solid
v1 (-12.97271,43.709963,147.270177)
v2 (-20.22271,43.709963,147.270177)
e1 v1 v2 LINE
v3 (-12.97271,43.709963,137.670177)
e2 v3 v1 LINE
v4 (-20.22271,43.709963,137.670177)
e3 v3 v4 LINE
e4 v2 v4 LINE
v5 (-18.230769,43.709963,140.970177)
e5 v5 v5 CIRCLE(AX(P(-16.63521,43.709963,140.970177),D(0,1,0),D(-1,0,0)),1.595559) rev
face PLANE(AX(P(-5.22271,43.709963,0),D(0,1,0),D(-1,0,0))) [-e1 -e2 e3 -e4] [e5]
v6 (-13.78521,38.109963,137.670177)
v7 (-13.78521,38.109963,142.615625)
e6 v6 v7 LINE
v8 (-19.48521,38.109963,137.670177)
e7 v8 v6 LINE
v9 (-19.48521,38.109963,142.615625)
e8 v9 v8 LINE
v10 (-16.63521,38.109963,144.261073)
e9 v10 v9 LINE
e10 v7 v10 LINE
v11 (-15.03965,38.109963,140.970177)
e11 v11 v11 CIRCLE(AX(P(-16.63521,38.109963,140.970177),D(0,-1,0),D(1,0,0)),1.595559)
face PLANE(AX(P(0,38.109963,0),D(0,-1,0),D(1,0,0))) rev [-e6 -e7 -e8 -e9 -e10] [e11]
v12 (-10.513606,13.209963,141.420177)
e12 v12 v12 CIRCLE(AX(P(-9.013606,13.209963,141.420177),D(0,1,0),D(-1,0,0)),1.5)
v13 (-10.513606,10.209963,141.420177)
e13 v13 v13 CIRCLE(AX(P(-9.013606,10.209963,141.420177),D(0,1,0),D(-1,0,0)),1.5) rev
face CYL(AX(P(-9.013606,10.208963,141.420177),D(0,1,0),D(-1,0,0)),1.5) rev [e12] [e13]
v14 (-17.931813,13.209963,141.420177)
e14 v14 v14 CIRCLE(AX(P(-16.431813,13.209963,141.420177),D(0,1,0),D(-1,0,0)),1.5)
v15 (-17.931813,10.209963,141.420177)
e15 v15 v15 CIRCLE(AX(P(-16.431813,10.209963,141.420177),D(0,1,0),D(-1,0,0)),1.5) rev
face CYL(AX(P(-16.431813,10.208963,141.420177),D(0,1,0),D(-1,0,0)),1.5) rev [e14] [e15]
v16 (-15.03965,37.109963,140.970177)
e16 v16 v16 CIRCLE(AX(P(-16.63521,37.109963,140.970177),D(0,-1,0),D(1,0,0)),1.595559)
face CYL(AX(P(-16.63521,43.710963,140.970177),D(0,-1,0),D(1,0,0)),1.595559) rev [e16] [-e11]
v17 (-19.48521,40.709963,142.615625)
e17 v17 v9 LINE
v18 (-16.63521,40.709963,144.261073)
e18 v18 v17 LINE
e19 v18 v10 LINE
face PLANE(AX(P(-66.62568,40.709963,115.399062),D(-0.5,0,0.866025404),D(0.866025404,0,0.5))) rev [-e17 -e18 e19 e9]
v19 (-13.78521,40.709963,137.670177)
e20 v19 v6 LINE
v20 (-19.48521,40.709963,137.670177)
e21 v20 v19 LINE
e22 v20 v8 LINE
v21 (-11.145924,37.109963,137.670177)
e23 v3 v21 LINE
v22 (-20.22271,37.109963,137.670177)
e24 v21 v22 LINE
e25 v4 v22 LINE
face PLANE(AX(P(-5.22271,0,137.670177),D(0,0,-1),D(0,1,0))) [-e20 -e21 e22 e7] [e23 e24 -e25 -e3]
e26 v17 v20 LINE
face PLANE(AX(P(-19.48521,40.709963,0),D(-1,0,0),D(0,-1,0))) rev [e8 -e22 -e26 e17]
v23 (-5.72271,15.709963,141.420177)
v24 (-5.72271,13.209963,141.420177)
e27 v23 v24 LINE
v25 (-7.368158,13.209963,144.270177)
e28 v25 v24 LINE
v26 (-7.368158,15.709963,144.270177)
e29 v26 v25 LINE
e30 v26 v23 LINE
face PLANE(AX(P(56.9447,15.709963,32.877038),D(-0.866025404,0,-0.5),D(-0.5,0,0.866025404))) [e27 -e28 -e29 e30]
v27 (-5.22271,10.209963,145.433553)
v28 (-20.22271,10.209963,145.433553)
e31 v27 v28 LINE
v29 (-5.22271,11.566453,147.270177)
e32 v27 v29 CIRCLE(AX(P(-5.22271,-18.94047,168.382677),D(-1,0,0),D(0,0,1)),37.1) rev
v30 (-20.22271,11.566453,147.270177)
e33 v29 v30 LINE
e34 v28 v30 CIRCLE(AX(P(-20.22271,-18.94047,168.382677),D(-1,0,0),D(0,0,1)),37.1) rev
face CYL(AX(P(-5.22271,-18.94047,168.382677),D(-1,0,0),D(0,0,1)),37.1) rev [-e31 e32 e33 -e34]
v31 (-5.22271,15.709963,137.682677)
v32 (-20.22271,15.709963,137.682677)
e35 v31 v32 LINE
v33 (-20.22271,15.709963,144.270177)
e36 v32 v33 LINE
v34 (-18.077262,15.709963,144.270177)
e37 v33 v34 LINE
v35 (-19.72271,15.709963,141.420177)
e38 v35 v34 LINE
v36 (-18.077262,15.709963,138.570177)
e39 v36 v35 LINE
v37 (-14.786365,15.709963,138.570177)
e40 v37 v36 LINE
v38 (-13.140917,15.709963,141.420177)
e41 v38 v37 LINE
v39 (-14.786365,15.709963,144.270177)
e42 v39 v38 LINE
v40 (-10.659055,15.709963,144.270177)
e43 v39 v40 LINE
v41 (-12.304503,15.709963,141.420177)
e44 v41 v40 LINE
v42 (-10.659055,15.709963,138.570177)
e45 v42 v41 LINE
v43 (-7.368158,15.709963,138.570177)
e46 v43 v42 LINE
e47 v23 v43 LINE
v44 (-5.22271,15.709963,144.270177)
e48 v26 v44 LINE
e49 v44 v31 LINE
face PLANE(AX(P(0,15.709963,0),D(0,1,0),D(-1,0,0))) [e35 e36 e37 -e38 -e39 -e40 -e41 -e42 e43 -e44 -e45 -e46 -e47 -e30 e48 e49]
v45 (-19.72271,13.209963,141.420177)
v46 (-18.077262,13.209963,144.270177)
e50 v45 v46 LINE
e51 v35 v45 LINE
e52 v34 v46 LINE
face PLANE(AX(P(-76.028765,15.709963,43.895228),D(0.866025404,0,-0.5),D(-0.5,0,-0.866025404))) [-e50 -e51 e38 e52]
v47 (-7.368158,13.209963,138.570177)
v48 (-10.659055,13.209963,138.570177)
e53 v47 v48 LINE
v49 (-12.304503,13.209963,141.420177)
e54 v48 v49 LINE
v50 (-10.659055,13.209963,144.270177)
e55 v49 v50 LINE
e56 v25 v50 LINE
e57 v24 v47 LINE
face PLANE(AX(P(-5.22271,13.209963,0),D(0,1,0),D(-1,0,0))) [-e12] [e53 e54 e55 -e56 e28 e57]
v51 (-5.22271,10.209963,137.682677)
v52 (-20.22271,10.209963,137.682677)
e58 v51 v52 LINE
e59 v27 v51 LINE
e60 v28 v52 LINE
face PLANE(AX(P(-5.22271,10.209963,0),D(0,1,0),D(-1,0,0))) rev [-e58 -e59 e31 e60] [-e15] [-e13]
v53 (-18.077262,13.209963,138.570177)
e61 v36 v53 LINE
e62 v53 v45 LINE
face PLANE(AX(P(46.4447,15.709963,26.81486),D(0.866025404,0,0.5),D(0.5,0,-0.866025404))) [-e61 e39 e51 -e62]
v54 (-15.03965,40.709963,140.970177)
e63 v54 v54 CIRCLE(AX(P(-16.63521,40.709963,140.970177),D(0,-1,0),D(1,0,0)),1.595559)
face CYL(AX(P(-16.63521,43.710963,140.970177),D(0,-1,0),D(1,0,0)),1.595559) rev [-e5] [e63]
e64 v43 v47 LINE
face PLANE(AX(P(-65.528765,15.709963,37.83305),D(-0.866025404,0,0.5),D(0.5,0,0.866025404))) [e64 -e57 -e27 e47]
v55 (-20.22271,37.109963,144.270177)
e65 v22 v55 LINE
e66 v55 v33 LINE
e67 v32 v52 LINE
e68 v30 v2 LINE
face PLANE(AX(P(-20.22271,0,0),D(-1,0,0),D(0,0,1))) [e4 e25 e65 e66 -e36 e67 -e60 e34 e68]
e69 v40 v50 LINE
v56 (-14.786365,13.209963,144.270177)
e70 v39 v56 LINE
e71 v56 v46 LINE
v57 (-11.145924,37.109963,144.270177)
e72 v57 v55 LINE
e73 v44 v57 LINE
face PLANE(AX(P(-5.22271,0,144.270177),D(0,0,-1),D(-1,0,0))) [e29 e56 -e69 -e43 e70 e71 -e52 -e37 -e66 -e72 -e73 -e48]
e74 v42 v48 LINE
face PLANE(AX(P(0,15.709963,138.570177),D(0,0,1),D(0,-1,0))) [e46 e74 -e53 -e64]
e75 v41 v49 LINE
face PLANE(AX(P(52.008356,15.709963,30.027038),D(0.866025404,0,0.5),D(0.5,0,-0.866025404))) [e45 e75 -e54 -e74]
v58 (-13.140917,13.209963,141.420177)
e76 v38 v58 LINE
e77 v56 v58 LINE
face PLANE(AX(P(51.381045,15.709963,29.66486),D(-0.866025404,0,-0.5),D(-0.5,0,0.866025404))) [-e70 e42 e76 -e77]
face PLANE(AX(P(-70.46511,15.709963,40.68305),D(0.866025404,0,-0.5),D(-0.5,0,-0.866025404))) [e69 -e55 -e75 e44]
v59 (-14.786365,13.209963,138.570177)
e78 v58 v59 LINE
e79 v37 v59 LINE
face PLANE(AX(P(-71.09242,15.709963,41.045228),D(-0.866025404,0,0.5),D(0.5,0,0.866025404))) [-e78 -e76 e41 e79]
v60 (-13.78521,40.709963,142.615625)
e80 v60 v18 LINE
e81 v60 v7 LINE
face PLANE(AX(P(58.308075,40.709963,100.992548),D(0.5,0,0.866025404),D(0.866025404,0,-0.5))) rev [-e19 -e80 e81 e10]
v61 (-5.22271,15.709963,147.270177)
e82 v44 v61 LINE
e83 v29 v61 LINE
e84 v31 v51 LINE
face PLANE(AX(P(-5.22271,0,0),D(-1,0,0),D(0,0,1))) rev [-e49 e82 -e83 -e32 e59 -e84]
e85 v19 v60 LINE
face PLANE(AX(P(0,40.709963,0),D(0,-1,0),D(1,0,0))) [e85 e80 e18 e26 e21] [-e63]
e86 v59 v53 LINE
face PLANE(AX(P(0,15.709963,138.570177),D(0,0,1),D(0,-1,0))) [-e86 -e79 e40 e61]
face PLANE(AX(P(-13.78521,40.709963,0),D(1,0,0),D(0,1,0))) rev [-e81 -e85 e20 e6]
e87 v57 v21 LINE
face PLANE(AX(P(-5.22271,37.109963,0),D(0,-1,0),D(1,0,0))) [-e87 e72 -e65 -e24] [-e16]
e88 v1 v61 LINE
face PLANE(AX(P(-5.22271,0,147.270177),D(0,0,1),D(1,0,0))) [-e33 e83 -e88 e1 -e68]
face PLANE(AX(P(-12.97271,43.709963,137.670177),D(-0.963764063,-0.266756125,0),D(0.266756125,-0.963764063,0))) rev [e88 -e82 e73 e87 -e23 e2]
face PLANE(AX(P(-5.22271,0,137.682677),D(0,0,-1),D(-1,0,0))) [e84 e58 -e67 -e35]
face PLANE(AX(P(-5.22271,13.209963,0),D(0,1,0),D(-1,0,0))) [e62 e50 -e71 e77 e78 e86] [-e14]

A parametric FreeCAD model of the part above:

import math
import FreeCAD as App
import Part
import Sketcher
Q = App.Units.Quantity

doc = App.newDocument("Part")
params = doc.addObject("Spreadsheet::Sheet", "Params")
for row, (alias, value) in enumerate([
    ("sketch1_radius", "37.1 mm"),
    ("sketch1_width", "3 mm"),
    ("sketch1_width2", "23.9 mm"),
    ("sketch1_width3", "6.6 mm"),
    ("sketch1_height", "9.6 mm"),
    ("pad1_length", "15 mm"),
    ("sketch3_width", "5.7 mm"),
    ("pocket2_length", "2.6 mm"),
    ("sketch4_diameter", "3 mm"),
    ("sketch5_diameter", "3 mm"),
    ("sketch6_width", "15 mm"),
    ("pad2_length", "2.5 mm"),
    ("sketch7_height", "28 mm"),
    ("sketch7_width", "7.75 mm"),
], start=1):
    params.set(f"A{row}", alias)
    params.set(f"B{row}", "=" + value)
    params.setAlias(f"B{row}", alias)

body = doc.addObject("PartDesign::Body", "Body")

sketch1 = body.newObject("Sketcher::SketchObject", "Sketch")
sketch1.AttachmentSupport = (doc.getObject("YZ_Plane"), [""])
sketch1.MapMode = "FlatFace"
sketch1.AttachmentOffset = App.Placement(App.Vector(0, 0, -20.22271), App.Rotation())
sketch1.addGeometry([
    Part.LineSegment(App.Vector(37.109963, 144.270177, 0), App.Vector(13.209963, 144.270177, 0)),
    Part.LineSegment(App.Vector(13.209963, 144.270177, 0), App.Vector(13.209963, 137.682677, 0)),
    Part.LineSegment(App.Vector(13.209963, 137.682677, 0), App.Vector(10.209963, 137.682677, 0)),
    Part.LineSegment(App.Vector(10.209963, 137.682677, 0), App.Vector(10.209963, 145.433553, 0)),
    Part.ArcOfCircle(Part.Circle(App.Vector(-18.94047, 168.382676, 0), App.Vector(0, 0, 1), 37.1), math.radians(-38.212131), math.radians(-34.685405)),
    Part.LineSegment(App.Vector(11.566453, 147.270177, 0), App.Vector(43.709963, 147.270177, 0)),
    Part.LineSegment(App.Vector(43.709963, 147.270177, 0), App.Vector(43.709963, 137.670177, 0)),
    Part.LineSegment(App.Vector(43.709963, 137.670177, 0), App.Vector(37.109963, 137.670177, 0)),
    Part.LineSegment(App.Vector(37.109963, 137.670177, 0), App.Vector(37.109963, 144.270177, 0)),
], False)
sketch1.addConstraint([
    Sketcher.Constraint("Coincident", 0, 2, 1, 1),
    Sketcher.Constraint("Coincident", 1, 2, 2, 1),
    Sketcher.Constraint("Coincident", 2, 2, 3, 1),
    Sketcher.Constraint("Coincident", 3, 2, 4, 1),
    Sketcher.Constraint("Coincident", 4, 2, 5, 1),
    Sketcher.Constraint("Coincident", 5, 2, 6, 1),
    Sketcher.Constraint("Coincident", 6, 2, 7, 1),
    Sketcher.Constraint("Coincident", 7, 2, 8, 1),
    Sketcher.Constraint("Coincident", 8, 2, 0, 1),
    Sketcher.Constraint("Horizontal", 0),
    Sketcher.Constraint("Vertical", 1),
    Sketcher.Constraint("Horizontal", 2),
    Sketcher.Constraint("Vertical", 3),
    Sketcher.Constraint("Horizontal", 5),
    Sketcher.Constraint("Vertical", 6),
    Sketcher.Constraint("Horizontal", 7),
    Sketcher.Constraint("Vertical", 8),
    Sketcher.Constraint("Equal", 7, 8),
    Sketcher.Constraint("Radius", 4, Q("37.1 mm")),
    Sketcher.Constraint("DistanceX", 2, 2, 2, 1, Q("3 mm")),
    Sketcher.Constraint("DistanceX", 0, 2, 0, 1, Q("23.9 mm")),
    Sketcher.Constraint("DistanceX", 7, 2, 7, 1, Q("6.6 mm")),
    Sketcher.Constraint("DistanceY", 6, 2, 6, 1, Q("9.6 mm")),
    Sketcher.Constraint("DistanceY", 1, 2, 4, 3, Q("30.7 mm")),
    Sketcher.Constraint("DistanceY", 1, 2, 1, 1, Q("6.5875 mm")),
    Sketcher.Constraint("DistanceX", 5, 1, 5, 2, Q("32.14351 mm")),
    Sketcher.Constraint("DistanceX", 4, 3, -1, 1, Q("18.94047 mm")),
    Sketcher.Constraint("DistanceY", -1, 1, 4, 3, Q("168.382676 mm")),
])
sketch1.setExpression("Constraints[18]", "Params.sketch1_radius")
sketch1.setExpression("Constraints[19]", "Params.sketch1_width")
sketch1.setExpression("Constraints[20]", "Params.sketch1_width2")
sketch1.setExpression("Constraints[21]", "Params.sketch1_width3")
sketch1.setExpression("Constraints[22]", "Params.sketch1_height")
pad1 = body.newObject("PartDesign::Pad", "Pad")
pad1.Profile = sketch1
pad1.setExpression("Length", "Params.pad1_length")

sketch2 = body.newObject("Sketcher::SketchObject", "Sketch001")
sketch2.AttachmentSupport = (doc.getObject("XZ_Plane"), [""])
sketch2.MapMode = "FlatFace"
sketch2.AttachmentOffset = App.Placement(App.Vector(0, 0, -37.109963), App.Rotation())
sketch2.addGeometry(Part.Circle(App.Vector(-16.63521, 140.970177, 0), App.Vector(0, 0, 1), 1.595559), False)
sketch2.addConstraint([
    Sketcher.Constraint("Diameter", 0, Q("3.191119 mm")),
    Sketcher.Constraint("DistanceX", 0, 3, -1, 1, Q("16.63521 mm")),
    Sketcher.Constraint("DistanceY", -1, 1, 0, 3, Q("140.970177 mm")),
])
pocket1 = body.newObject("PartDesign::Pocket", "Pocket")
pocket1.Profile = sketch2
pocket1.Type = "UpToFirst"

sketch3 = body.newObject("Sketcher::SketchObject", "Sketch002")
sketch3.AttachmentSupport = (doc.getObject("XZ_Plane"), [""])
sketch3.MapMode = "FlatFace"
sketch3.AttachmentOffset = App.Placement(App.Vector(0, 0, -40.709963), App.Rotation())
sketch3.addGeometry([
    Part.LineSegment(App.Vector(-19.48521, 142.615625, 0), App.Vector(-19.48521, 137.670177, 0)),
    Part.LineSegment(App.Vector(-19.48521, 137.670177, 0), App.Vector(-13.78521, 137.670177, 0)),
    Part.LineSegment(App.Vector(-13.78521, 137.670177, 0), App.Vector(-13.78521, 142.615625, 0)),
    Part.LineSegment(App.Vector(-13.78521, 142.615625, 0), App.Vector(-16.63521, 144.261073, 0)),
    Part.LineSegment(App.Vector(-16.63521, 144.261073, 0), App.Vector(-19.48521, 142.615625, 0)),
], False)
sketch3.addConstraint([
    Sketcher.Constraint("Coincident", 0, 2, 1, 1),
    Sketcher.Constraint("Coincident", 1, 2, 2, 1),
    Sketcher.Constraint("Coincident", 2, 2, 3, 1),
    Sketcher.Constraint("Coincident", 3, 2, 4, 1),
    Sketcher.Constraint("Coincident", 4, 2, 0, 1),
    Sketcher.Constraint("Vertical", 0),
    Sketcher.Constraint("Horizontal", 1),
    Sketcher.Constraint("Vertical", 2),
    Sketcher.Constraint("Horizontal", 2, 2, 4, 2),
    Sketcher.Constraint("Equal", 3, 4),
    Sketcher.Constraint("Angle", 3, Q("150 deg")),
    Sketcher.Constraint("DistanceX", 1, 1, 1, 2, Q("5.7 mm")),
    Sketcher.Constraint("DistanceY", 0, 2, 0, 1, Q("4.945448 mm")),
    Sketcher.Constraint("DistanceX", 0, 2, -1, 1, Q("19.48521 mm")),
    Sketcher.Constraint("DistanceY", -1, 1, 0, 2, Q("137.670177 mm")),
])
sketch3.setExpression("Constraints[11]", "Params.sketch3_width")
pocket2 = body.newObject("PartDesign::Pocket", "Pocket001")
pocket2.Profile = sketch3
pocket2.setExpression("Length", "Params.pocket2_length")
pocket2.Reversed = True

sketch4 = body.newObject("Sketcher::SketchObject", "Sketch003")
sketch4.AttachmentSupport = (doc.getObject("XZ_Plane"), [""])
sketch4.MapMode = "FlatFace"
sketch4.AttachmentOffset = App.Placement(App.Vector(0, 0, -13.209963), App.Rotation())
sketch4.addGeometry(Part.Circle(App.Vector(-16.431813, 141.420177, 0), App.Vector(0, 0, 1), 1.5), False)
sketch4.addConstraint([
    Sketcher.Constraint("Diameter", 0, Q("3 mm")),
    Sketcher.Constraint("DistanceX", 0, 3, -1, 1, Q("16.431813 mm")),
    Sketcher.Constraint("DistanceY", -1, 1, 0, 3, Q("141.420177 mm")),
])
sketch4.setExpression("Constraints[0]", "Params.sketch4_diameter")
pocket3 = body.newObject("PartDesign::Pocket", "Pocket002")
pocket3.Profile = sketch4
pocket3.Type = "UpToFirst"
pocket3.Reversed = True

sketch5 = body.newObject("Sketcher::SketchObject", "Sketch004")
sketch5.AttachmentSupport = (doc.getObject("XZ_Plane"), [""])
sketch5.MapMode = "FlatFace"
sketch5.AttachmentOffset = App.Placement(App.Vector(0, 0, -13.209963), App.Rotation())
sketch5.addGeometry(Part.Circle(App.Vector(-9.013606, 141.420177, 0), App.Vector(0, 0, 1), 1.5), False)
sketch5.addConstraint([
    Sketcher.Constraint("Diameter", 0, Q("3 mm")),
    Sketcher.Constraint("DistanceX", 0, 3, -1, 1, Q("9.013606 mm")),
    Sketcher.Constraint("DistanceY", -1, 1, 0, 3, Q("141.420177 mm")),
])
sketch5.setExpression("Constraints[0]", "Params.sketch5_diameter")
pocket4 = body.newObject("PartDesign::Pocket", "Pocket003")
pocket4.Profile = sketch5
pocket4.Type = "UpToFirst"
pocket4.Reversed = True

sketch6 = body.newObject("Sketcher::SketchObject", "Sketch005")
sketch6.AttachmentSupport = (doc.getObject("XZ_Plane"), [""])
sketch6.MapMode = "FlatFace"
sketch6.AttachmentOffset = App.Placement(App.Vector(0, 0, -13.209963), App.Rotation())
sketch6.addGeometry([
    Part.LineSegment(App.Vector(-18.077262, 144.270177, 0), App.Vector(-19.72271, 141.420177, 0)),
    Part.LineSegment(App.Vector(-19.72271, 141.420177, 0), App.Vector(-18.077262, 138.570177, 0)),
    Part.LineSegment(App.Vector(-18.077262, 138.570177, 0), App.Vector(-14.786365, 138.570177, 0)),
    Part.LineSegment(App.Vector(-14.786365, 138.570177, 0), App.Vector(-13.140917, 141.420177, 0)),
    Part.LineSegment(App.Vector(-13.140917, 141.420177, 0), App.Vector(-14.786365, 144.270177, 0)),
    Part.LineSegment(App.Vector(-14.786365, 144.270177, 0), App.Vector(-10.659055, 144.270177, 0)),
    Part.LineSegment(App.Vector(-10.659055, 144.270177, 0), App.Vector(-12.304503, 141.420177, 0)),
    Part.LineSegment(App.Vector(-12.304503, 141.420177, 0), App.Vector(-10.659055, 138.570177, 0)),
    Part.LineSegment(App.Vector(-10.659055, 138.570177, 0), App.Vector(-7.368158, 138.570177, 0)),
    Part.LineSegment(App.Vector(-7.368158, 138.570177, 0), App.Vector(-5.72271, 141.420177, 0)),
    Part.LineSegment(App.Vector(-5.72271, 141.420177, 0), App.Vector(-7.368158, 144.270177, 0)),
    Part.LineSegment(App.Vector(-7.368158, 144.270177, 0), App.Vector(-5.22271, 144.270177, 0)),
    Part.LineSegment(App.Vector(-5.22271, 144.270177, 0), App.Vector(-5.22271, 137.682677, 0)),
    Part.LineSegment(App.Vector(-5.22271, 137.682677, 0), App.Vector(-20.22271, 137.682677, 0)),
    Part.LineSegment(App.Vector(-20.22271, 137.682677, 0), App.Vector(-20.22271, 144.270177, 0)),
    Part.LineSegment(App.Vector(-20.22271, 144.270177, 0), App.Vector(-18.077262, 144.270177, 0)),
], False)
sketch6.addConstraint([
    Sketcher.Constraint("Coincident", 0, 2, 1, 1),
    Sketcher.Constraint("Coincident", 1, 2, 2, 1),
    Sketcher.Constraint("Coincident", 2, 2, 3, 1),
    Sketcher.Constraint("Coincident", 3, 2, 4, 1),
    Sketcher.Constraint("Coincident", 4, 2, 5, 1),
    Sketcher.Constraint("Coincident", 5, 2, 6, 1),
    Sketcher.Constraint("Coincident", 6, 2, 7, 1),
    Sketcher.Constraint("Coincident", 7, 2, 8, 1),
    Sketcher.Constraint("Coincident", 8, 2, 9, 1),
    Sketcher.Constraint("Coincident", 9, 2, 10, 1),
    Sketcher.Constraint("Coincident", 10, 2, 11, 1),
    Sketcher.Constraint("Coincident", 11, 2, 12, 1),
    Sketcher.Constraint("Coincident", 12, 2, 13, 1),
    Sketcher.Constraint("Coincident", 13, 2, 14, 1),
    Sketcher.Constraint("Coincident", 14, 2, 15, 1),
    Sketcher.Constraint("Coincident", 15, 2, 0, 1),
    Sketcher.Constraint("Horizontal", 2),
    Sketcher.Constraint("Horizontal", 5),
    Sketcher.Constraint("Horizontal", 8),
    Sketcher.Constraint("Horizontal", 11),
    Sketcher.Constraint("Vertical", 12),
    Sketcher.Constraint("Horizontal", 13),
    Sketcher.Constraint("Vertical", 14),
    Sketcher.Constraint("Horizontal", 15),
    Sketcher.Constraint("Parallel", 0, 3),
    Sketcher.Constraint("Parallel", 1, 4),
    Sketcher.Constraint("Parallel", 3, 6),
    Sketcher.Constraint("Parallel", 4, 7),
    Sketcher.Constraint("Parallel", 6, 9),
    Sketcher.Constraint("Parallel", 7, 10),
    Sketcher.Constraint("Horizontal", 0, 2, 3, 2),
    Sketcher.Constraint("Horizontal", 3, 2, 6, 2),
    Sketcher.Constraint("Horizontal", 2, 2, 7, 2),
    Sketcher.Constraint("Horizontal", 6, 2, 9, 2),
    Sketcher.Constraint("Horizontal", 5, 2, 10, 2),
    Sketcher.Constraint("Horizontal", 11, 2, 14, 2),
    Sketcher.Constraint("Vertical", 2, 2, 4, 2),
    Sketcher.Constraint("Vertical", 5, 2, 7, 2),
    Sketcher.Constraint("Equal", 2, 8),
    Sketcher.Constraint("Equal", 11, 15),
    Sketcher.Constraint("DistanceX", 13, 2, 13, 1, Q("15 mm")),
    Sketcher.Constraint("Angle", 0, Q("-120 deg")),
    Sketcher.Constraint("DistanceY", 2, 2, 4, 2, Q("5.7 mm")),
    Sketcher.Constraint("DistanceX", 9, 2, 11, 2, Q("0.5 mm")),
    Sketcher.Constraint("DistanceY", 12, 2, 12, 1, Q("6.5875 mm")),
    Sketcher.Constraint("DistanceX", 5, 1, 5, 2, Q("4.12731 mm")),
    Sketcher.Constraint("DistanceX", 0, 2, -1, 1, Q("19.72271 mm")),
    Sketcher.Constraint("DistanceY", -1, 1, 0, 2, Q("141.420177 mm")),
])
sketch6.setExpression("Constraints[40]", "Params.sketch6_width")
pad2 = body.newObject("PartDesign::Pad", "Pad001")
pad2.Profile = sketch6
pad2.setExpression("Length", "Params.pad2_length")
pad2.Reversed = True

sketch7 = body.newObject("Sketcher::SketchObject", "Sketch006")
sketch7.AttachmentSupport = (doc.getObject("XY_Plane"), [""])
sketch7.MapMode = "FlatFace"
sketch7.AttachmentOffset = App.Placement(App.Vector(0, 0, 147.270177), App.Rotation())
sketch7.addGeometry([
    Part.LineSegment(App.Vector(-12.97271, 43.709963, 0), App.Vector(-5.22271, 15.709963, 0)),
    Part.LineSegment(App.Vector(-5.22271, 15.709963, 0), App.Vector(-5.22271, 43.709963, 0)),
    Part.LineSegment(App.Vector(-5.22271, 43.709963, 0), App.Vector(-12.97271, 43.709963, 0)),
], False)
sketch7.addConstraint([
    Sketcher.Constraint("Coincident", 0, 2, 1, 1),
    Sketcher.Constraint("Coincident", 1, 2, 2, 1),
    Sketcher.Constraint("Coincident", 2, 2, 0, 1),
    Sketcher.Constraint("Vertical", 1),
    Sketcher.Constraint("Horizontal", 2),
    Sketcher.Constraint("DistanceY", 1, 1, 1, 2, Q("28 mm")),
    Sketcher.Constraint("DistanceX", 2, 2, 2, 1, Q("7.75 mm")),
    Sketcher.Constraint("DistanceX", 0, 2, -1, 1, Q("5.22271 mm")),
    Sketcher.Constraint("DistanceY", -1, 1, 0, 2, Q("15.709963 mm")),
])
sketch7.setExpression("Constraints[5]", "Params.sketch7_height")
sketch7.setExpression("Constraints[6]", "Params.sketch7_width")
pocket5 = body.newObject("PartDesign::Pocket", "Pocket004")
pocket5.Profile = sketch7
pocket5.Type = "ThroughAll"

doc.recompute()
